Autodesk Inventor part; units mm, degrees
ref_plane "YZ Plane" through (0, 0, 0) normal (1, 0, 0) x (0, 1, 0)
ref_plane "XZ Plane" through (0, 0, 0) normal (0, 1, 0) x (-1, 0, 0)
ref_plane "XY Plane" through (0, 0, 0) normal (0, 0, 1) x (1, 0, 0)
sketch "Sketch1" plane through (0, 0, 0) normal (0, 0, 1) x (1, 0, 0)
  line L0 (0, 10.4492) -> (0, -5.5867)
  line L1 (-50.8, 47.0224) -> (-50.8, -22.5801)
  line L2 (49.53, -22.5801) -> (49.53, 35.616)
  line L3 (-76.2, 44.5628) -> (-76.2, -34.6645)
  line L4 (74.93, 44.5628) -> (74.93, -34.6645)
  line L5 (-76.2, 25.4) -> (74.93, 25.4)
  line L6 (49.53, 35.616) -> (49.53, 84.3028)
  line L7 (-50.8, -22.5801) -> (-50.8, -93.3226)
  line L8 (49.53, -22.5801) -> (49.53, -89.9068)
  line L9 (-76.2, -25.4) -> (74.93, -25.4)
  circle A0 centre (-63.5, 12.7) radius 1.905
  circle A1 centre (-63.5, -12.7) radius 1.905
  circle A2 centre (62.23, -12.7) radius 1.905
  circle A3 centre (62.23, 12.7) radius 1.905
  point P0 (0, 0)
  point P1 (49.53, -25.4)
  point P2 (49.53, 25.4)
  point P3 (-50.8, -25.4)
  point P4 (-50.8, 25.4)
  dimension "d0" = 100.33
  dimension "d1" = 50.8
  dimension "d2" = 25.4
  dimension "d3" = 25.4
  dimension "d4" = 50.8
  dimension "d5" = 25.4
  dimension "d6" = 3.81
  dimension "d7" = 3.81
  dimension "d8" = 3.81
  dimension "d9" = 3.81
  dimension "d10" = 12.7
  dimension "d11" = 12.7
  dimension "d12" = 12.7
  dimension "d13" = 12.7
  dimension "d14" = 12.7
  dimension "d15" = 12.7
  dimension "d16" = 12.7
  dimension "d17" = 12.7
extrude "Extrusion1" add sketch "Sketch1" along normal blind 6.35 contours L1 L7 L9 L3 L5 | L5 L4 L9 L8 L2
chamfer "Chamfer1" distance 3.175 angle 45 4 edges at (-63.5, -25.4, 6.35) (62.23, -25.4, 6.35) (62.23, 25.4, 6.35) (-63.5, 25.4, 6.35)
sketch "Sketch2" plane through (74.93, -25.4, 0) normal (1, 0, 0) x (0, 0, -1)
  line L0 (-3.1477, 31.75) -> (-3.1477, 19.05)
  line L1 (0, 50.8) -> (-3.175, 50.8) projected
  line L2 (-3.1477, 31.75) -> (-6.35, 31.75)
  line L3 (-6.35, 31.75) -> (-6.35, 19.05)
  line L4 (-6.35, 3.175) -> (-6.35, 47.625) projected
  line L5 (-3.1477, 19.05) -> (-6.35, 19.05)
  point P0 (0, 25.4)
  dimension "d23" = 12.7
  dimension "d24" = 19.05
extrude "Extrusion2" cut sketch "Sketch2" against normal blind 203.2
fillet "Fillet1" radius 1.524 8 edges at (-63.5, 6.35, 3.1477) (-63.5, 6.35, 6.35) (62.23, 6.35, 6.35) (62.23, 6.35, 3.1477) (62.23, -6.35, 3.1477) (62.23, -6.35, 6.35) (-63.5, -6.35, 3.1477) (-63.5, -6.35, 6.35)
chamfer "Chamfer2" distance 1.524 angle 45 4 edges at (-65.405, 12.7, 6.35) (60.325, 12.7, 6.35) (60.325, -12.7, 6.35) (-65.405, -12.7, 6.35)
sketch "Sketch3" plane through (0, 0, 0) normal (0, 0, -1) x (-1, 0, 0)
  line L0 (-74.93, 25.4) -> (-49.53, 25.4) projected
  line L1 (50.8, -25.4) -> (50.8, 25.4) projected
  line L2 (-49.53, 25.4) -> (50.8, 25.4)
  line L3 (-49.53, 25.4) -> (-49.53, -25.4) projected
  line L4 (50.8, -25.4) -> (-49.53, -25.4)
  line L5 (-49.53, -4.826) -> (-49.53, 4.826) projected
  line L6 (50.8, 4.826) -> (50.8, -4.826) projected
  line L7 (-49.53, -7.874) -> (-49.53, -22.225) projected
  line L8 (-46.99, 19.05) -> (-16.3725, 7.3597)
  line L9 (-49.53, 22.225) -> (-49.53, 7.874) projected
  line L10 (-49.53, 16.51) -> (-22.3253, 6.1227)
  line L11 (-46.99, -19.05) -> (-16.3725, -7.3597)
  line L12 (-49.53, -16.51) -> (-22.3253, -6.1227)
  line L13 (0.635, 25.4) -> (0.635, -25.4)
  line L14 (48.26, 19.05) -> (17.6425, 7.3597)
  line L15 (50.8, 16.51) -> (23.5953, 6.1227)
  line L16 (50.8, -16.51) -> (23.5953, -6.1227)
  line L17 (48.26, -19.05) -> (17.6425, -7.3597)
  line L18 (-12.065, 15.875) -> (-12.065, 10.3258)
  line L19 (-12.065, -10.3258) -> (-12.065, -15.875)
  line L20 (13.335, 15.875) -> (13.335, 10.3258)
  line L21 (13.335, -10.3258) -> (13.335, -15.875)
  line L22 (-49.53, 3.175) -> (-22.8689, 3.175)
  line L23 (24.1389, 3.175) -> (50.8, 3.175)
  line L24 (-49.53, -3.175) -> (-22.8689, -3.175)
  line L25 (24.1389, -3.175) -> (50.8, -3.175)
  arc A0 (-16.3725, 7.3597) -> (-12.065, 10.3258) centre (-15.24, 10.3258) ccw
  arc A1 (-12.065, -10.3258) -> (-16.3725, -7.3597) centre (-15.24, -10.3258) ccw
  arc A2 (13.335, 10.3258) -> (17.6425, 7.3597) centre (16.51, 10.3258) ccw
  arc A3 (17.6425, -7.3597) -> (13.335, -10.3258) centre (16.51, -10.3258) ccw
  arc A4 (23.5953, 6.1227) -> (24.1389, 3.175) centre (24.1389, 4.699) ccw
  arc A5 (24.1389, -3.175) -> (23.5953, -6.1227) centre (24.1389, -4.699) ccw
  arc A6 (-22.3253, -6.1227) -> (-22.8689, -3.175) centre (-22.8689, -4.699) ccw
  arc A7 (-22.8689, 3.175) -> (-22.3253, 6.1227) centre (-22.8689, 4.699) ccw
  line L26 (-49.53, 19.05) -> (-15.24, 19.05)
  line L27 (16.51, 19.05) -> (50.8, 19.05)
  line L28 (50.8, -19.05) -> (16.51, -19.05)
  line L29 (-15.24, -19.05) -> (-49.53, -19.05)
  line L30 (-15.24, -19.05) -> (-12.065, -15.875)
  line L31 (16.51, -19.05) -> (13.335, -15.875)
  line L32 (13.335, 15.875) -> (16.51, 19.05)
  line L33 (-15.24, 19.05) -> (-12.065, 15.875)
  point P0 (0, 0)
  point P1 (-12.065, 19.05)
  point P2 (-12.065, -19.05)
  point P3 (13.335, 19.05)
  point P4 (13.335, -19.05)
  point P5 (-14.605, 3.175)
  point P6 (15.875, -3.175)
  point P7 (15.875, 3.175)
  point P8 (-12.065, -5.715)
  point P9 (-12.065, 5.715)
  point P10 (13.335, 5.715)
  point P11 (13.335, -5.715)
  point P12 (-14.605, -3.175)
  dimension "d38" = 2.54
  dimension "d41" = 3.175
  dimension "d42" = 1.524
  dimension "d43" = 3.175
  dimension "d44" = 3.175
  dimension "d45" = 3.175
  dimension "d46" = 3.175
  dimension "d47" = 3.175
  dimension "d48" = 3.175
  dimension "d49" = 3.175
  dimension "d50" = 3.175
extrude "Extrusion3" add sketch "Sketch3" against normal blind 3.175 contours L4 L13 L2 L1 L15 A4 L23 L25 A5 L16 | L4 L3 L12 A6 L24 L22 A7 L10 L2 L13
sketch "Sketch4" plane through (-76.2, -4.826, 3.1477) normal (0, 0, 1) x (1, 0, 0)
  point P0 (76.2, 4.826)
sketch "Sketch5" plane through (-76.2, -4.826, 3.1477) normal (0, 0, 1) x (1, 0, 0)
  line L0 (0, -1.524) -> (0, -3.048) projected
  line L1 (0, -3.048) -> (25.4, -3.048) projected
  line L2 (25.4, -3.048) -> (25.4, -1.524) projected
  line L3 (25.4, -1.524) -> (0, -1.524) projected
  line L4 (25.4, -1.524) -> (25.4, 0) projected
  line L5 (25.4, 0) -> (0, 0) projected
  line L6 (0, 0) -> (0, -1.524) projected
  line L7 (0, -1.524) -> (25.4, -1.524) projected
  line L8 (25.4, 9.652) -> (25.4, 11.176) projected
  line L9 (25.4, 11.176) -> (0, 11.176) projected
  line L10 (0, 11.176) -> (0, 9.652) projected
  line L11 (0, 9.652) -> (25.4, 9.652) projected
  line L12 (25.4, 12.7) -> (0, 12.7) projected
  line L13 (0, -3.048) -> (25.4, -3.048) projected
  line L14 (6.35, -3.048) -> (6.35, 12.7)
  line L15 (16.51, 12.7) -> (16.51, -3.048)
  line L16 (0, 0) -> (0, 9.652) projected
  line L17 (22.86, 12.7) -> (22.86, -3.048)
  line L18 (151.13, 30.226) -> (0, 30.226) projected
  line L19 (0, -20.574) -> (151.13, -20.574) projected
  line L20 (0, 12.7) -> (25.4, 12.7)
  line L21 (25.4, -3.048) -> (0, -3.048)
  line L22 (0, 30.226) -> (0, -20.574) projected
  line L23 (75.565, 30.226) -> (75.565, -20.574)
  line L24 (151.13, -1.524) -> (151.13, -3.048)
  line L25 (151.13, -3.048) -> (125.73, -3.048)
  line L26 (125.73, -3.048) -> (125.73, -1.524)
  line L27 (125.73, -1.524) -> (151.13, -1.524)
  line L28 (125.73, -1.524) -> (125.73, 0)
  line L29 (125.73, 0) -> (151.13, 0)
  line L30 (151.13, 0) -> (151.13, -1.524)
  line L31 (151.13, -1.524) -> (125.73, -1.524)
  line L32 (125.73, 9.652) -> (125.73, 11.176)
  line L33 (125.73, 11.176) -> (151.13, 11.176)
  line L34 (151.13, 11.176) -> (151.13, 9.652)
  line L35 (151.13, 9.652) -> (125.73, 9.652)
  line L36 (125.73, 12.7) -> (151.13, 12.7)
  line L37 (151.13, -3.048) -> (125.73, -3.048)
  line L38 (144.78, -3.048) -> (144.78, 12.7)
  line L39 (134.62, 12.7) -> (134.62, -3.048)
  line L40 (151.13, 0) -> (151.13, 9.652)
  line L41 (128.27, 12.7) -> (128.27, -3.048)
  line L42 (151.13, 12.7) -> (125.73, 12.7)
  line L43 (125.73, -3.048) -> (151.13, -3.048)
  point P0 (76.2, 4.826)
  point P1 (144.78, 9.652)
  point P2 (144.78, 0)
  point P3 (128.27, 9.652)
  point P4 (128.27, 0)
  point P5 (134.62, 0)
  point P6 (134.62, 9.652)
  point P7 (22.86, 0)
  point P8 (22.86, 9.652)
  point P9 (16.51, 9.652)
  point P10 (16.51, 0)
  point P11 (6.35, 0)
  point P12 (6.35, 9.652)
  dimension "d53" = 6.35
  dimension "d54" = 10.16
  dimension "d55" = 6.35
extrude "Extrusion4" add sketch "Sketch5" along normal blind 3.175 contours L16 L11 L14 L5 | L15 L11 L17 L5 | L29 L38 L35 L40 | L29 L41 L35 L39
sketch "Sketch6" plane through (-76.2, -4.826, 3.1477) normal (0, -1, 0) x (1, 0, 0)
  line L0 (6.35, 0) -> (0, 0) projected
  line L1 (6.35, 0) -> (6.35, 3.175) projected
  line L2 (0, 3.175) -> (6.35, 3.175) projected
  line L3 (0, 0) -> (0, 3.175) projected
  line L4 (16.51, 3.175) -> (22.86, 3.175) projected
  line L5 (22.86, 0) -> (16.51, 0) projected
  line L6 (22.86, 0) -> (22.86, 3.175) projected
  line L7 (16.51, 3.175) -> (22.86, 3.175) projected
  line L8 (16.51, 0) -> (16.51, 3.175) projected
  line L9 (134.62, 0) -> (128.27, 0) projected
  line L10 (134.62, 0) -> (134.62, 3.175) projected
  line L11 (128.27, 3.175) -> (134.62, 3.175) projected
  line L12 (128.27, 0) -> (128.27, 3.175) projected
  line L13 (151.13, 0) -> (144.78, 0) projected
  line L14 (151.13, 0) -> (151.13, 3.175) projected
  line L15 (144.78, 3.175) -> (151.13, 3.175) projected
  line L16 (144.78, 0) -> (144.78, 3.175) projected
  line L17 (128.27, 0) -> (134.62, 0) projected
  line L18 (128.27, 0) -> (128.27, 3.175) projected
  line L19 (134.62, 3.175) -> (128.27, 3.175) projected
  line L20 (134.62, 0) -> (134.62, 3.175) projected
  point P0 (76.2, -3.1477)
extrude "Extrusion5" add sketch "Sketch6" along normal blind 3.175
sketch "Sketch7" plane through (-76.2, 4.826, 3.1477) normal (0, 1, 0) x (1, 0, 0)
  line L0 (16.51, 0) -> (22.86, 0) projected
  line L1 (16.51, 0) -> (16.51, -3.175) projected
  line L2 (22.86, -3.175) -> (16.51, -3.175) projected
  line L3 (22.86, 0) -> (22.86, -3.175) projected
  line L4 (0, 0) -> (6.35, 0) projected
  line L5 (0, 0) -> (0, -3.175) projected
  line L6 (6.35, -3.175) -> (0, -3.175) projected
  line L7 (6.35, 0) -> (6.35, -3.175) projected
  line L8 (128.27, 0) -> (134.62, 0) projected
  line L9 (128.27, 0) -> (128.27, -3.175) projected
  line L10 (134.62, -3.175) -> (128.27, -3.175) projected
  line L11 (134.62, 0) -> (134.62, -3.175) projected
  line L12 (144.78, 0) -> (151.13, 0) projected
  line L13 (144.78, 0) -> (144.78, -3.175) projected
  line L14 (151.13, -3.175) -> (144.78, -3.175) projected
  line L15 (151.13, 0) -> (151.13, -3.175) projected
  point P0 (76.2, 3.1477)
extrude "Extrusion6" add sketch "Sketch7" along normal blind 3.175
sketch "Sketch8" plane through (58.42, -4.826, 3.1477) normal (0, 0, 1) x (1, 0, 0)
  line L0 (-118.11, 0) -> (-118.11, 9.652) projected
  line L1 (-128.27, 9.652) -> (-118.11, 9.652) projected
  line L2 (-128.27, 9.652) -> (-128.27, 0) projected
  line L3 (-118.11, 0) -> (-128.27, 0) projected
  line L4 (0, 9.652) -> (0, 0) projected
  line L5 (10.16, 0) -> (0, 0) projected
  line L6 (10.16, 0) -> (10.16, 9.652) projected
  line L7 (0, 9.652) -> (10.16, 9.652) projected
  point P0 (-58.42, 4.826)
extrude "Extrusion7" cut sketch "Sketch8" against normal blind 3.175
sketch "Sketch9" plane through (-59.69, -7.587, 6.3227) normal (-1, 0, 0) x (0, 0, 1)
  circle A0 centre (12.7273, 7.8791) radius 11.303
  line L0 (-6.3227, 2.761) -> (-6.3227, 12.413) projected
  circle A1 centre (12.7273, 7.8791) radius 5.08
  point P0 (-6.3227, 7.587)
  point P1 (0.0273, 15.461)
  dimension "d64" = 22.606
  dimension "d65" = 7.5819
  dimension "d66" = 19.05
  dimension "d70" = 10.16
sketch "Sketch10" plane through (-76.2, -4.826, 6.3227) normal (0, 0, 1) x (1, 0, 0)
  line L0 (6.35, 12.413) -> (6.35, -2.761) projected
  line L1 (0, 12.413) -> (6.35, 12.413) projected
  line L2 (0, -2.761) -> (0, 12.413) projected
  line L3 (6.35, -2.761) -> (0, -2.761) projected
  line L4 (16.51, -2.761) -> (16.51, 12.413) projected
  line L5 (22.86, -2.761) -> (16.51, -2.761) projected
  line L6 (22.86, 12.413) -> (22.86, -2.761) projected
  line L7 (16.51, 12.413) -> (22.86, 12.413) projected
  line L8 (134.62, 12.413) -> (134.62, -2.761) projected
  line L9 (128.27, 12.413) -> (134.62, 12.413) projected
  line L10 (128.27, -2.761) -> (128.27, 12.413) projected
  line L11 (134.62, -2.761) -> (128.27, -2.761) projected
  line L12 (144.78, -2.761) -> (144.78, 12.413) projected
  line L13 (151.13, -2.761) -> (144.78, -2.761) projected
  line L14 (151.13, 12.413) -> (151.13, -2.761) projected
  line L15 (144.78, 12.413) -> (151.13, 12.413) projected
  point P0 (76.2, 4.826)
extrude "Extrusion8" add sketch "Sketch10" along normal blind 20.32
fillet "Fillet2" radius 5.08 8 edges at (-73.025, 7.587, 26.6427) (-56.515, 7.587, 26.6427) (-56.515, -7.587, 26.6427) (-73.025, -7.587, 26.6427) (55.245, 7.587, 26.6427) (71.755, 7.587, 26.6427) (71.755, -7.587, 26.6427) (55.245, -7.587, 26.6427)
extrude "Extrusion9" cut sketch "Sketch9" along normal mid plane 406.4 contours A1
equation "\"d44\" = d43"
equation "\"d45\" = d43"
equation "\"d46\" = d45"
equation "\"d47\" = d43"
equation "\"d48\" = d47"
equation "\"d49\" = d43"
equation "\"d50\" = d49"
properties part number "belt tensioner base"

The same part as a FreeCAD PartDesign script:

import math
import FreeCAD as App
import Part
import Sketcher
from FreeCAD import Vector
Q = App.Units.Quantity


def edges_at(feature, points):
    """Names of the edges that pass closest to the given points."""
    edges = feature.Shape.Edges
    near = lambda p: min(range(len(edges)), key=lambda i: edges[i].distToShape(Part.Vertex(*p))[0])
    return sorted({f"Edge{near(p) + 1}" for p in points})


def add_polygon(sketch, points):
    """Adds a closed chain of lines whose ends are joined by coincident constraints."""
    first, n = sketch.GeometryCount, len(points)
    for a, b in zip(points, points[1:] + points[:1]):
        sketch.addGeometry(Part.LineSegment(App.Vector(*a, 0), App.Vector(*b, 0)), False)
    for i in range(n):
        sketch.addConstraint(Sketcher.Constraint("Coincident", first + i, 2, first + (i + 1) % n, 1))

doc = App.newDocument("Part")
body = doc.addObject("PartDesign::Body", "Body")
body.AllowCompound = True

sketch1 = body.newObject("Sketcher::SketchObject", "Sketch")
sketch1.AttachmentSupport = (doc.getObject("XY_Plane"), [""])
sketch1.MapMode = "FlatFace"
add_polygon(sketch1, [(-50.8, -25.4), (-50.8, 25.4), (-76.2, 25.4), (-76.2, -25.4)])
sketch1.addGeometry(Part.Circle(Vector(-63.5, -12.7, 0), Vector(0, 0, 1), 1.9), False)
sketch1.addGeometry(Part.Circle(Vector(-63.5, 12.7, 0), Vector(0, 0, 1), 1.9), False)
add_polygon(sketch1, [(74.9, 25.4), (49.5, 25.4), (49.5, -25.4), (74.9, -25.4)])
sketch1.addGeometry(Part.Circle(Vector(62.2, -12.7, 0), Vector(0, 0, 1), 1.9), False)
sketch1.addGeometry(Part.Circle(Vector(62.2, 12.7, 0), Vector(0, 0, 1), 1.9), False)
sketch1.addConstraint(Sketcher.Constraint("Vertical", 0))
sketch1.addConstraint(Sketcher.Constraint("Horizontal", 1))
sketch1.addConstraint(Sketcher.Constraint("Vertical", 2))
sketch1.addConstraint(Sketcher.Constraint("Horizontal", 3))
sketch1.addConstraint(Sketcher.Constraint("Horizontal", 6))
sketch1.addConstraint(Sketcher.Constraint("Vertical", 7))
sketch1.addConstraint(Sketcher.Constraint("Horizontal", 8))
sketch1.addConstraint(Sketcher.Constraint("Vertical", 9))
sketch1.addConstraint(Sketcher.Constraint("Equal", 4, 5))
sketch1.addConstraint(Sketcher.Constraint("Equal", 5, 10))
sketch1.addConstraint(Sketcher.Constraint("Equal", 10, 11))
sketch1.addConstraint(Sketcher.Constraint("Symmetric", 4, 3, 5, 3, -1))
sketch1.addConstraint(Sketcher.Constraint("Symmetric", 10, 3, 11, 3, -1))
sketch1.addConstraint(Sketcher.Constraint("Horizontal", 4, 3, 10, 3))
sketch1.addConstraint(Sketcher.Constraint("Horizontal", 1, 2, 6, 2))
sketch1.addConstraint(Sketcher.Constraint("Horizontal", 3, 2, 7, 2))
sketch1.addConstraint(Sketcher.Constraint("Equal", 3, 6))
sketch1.addConstraint(Sketcher.Constraint("Diameter", 4, Q("0.15 in")))
sketch1.addConstraint(Sketcher.Constraint("DistanceX", 1, 2, 1, 1, Q("1 in")))
sketch1.addConstraint(Sketcher.Constraint("DistanceY", 0, 1, 0, 2, Q("2 in")))
sketch1.addConstraint(Sketcher.Constraint("DistanceX", 0, 2, -1, 1, Q("2 in")))
sketch1.addConstraint(Sketcher.Constraint("DistanceY", -1, 1, 0, 2, Q("1 in")))
sketch1.addConstraint(Sketcher.Constraint("DistanceY", 4, 3, 5, 3, Q("1 in")))
sketch1.addConstraint(Sketcher.Constraint("DistanceX", 5, 3, 0, 2, Q("0.5 in")))
sketch1.addConstraint(Sketcher.Constraint("DistanceX", 6, 2, 11, 3, Q("0.5 in")))
sketch1.addConstraint(Sketcher.Constraint("DistanceX", 0, 2, 6, 2, Q("3.95 in")))
pad1 = body.newObject("PartDesign::Pad", "Pad")
pad1.Profile = sketch1
pad1.Length = Q("0.25 in")
doc.recompute()

chamfer = body.newObject("PartDesign::Chamfer", "Chamfer")
chamfer.Base = (pad1, edges_at(pad1, [
    (-63.5, -25.4, 6.35),
    (62.23, -25.4, 6.35),
    (62.23, 25.4, 6.35),
    (-63.5, 25.4, 6.35),
]))
chamfer.Size = Q("0.125 in")

sketch2 = body.newObject("Sketcher::SketchObject", "Sketch001")
sketch2.AttachmentSupport = (doc.getObject("YZ_Plane"), [""])
sketch2.MapMode = "FlatFace"
sketch2.AttachmentOffset = App.Placement(Vector(0, 0, 2.95 * 25.4), App.Rotation())
add_polygon(sketch2, [(-6.3, 3.1), (6.3, 3.1), (6.3, 6.3), (-6.3, 6.3)])
sketch2.addConstraint(Sketcher.Constraint("Horizontal", 0))
sketch2.addConstraint(Sketcher.Constraint("Vertical", 1))
sketch2.addConstraint(Sketcher.Constraint("Horizontal", 2))
sketch2.addConstraint(Sketcher.Constraint("Vertical", 3))
sketch2.addConstraint(Sketcher.Constraint("DistanceX", 0, 1, 0, 2, Q("0.5 in")))
sketch2.addConstraint(Sketcher.Constraint("DistanceX", -1, 1, 0, 2, Q("0.25 in")))
sketch2.addConstraint(Sketcher.Constraint("DistanceY", -1, 1, 1, 2, Q("0.25 in")))
sketch2.addConstraint(Sketcher.Constraint("DistanceY", 1, 1, 1, 2, 3.2023))
pocket1 = body.newObject("PartDesign::Pocket", "Pocket")
pocket1.Profile = sketch2
pocket1.Length = Q("8 in")
doc.recompute()

fillet = body.newObject("PartDesign::Fillet", "Fillet")
fillet.Base = (pocket1, edges_at(pocket1, [
    (-63.5, 6.35, 3.148),
    (-63.5, 6.35, 6.35),
    (62.23, 6.35, 6.35),
    (62.23, 6.35, 3.148),
    (62.23, -6.35, 3.148),
    (62.23, -6.35, 6.35),
    (-63.5, -6.35, 3.148),
    (-63.5, -6.35, 6.35),
]))
fillet.Radius = Q("0.06 in")
doc.recompute()

chamfer2 = body.newObject("PartDesign::Chamfer", "Chamfer001")
chamfer2.Base = (fillet, edges_at(fillet, [
    (-65.405, 12.7, 6.35),
    (60.325, 12.7, 6.35),
    (60.325, -12.7, 6.35),
    (-65.405, -12.7, 6.35),
]))
chamfer2.Size = Q("0.06 in")

sketch3 = body.newObject("Sketcher::SketchObject", "Sketch002")
sketch3.AttachmentSupport = (doc.getObject("XY_Plane"), [""])
sketch3.MapMode = "FlatFace"
sketch3.addGeometry(Part.LineSegment(Vector(-50.8, -25.4, 0), Vector(-50.8, -19.05, 0)), False)
sketch3.addGeometry(Part.LineSegment(Vector(-50.8, -19.05, 0), Vector(-50.8, -16.51, 0)), False)
sketch3.addGeometry(Part.LineSegment(Vector(-50.8, -16.51, 0), Vector(-23.5953, -6.1227, 0)), False)
sketch3.addGeometry(Part.ArcOfCircle(Part.Circle(Vector(-24.1389, -4.699, 0), Vector(0, 0, 1), 1.524), math.radians(-69.102043), math.radians(90)), False)
sketch3.addGeometry(Part.LineSegment(Vector(-24.1389, -3.175, 0), Vector(-50.8, -3.175, 0)), False)
sketch3.addGeometry(Part.LineSegment(Vector(-50.8, -3.175, 0), Vector(-50.8, 3.175, 0)), False)
sketch3.addGeometry(Part.LineSegment(Vector(-50.8, 3.175, 0), Vector(-24.1389, 3.175, 0)), False)
sketch3.addGeometry(Part.ArcOfCircle(Part.Circle(Vector(-24.1389, 4.699, 0), Vector(0, 0, 1), 1.52395), math.radians(-90), math.radians(69.102043)), False)
sketch3.addGeometry(Part.LineSegment(Vector(-23.5953, 6.1227, 0), Vector(-50.8, 16.51, 0)), False)
sketch3.addGeometry(Part.LineSegment(Vector(-50.8, 16.51, 0), Vector(-50.8, 19.05, 0)), False)
sketch3.addGeometry(Part.LineSegment(Vector(-50.8, 19.05, 0), Vector(-50.8, 25.4, 0)), False)
sketch3.addGeometry(Part.LineSegment(Vector(-50.8, 25.4, 0), Vector(49.53, 25.4, 0)), False)
sketch3.addGeometry(Part.LineSegment(Vector(49.53, 25.4, 0), Vector(49.53, 19.05, 0)), False)
sketch3.addGeometry(Part.LineSegment(Vector(49.53, 19.05, 0), Vector(49.53, 16.51, 0)), False)
sketch3.addGeometry(Part.LineSegment(Vector(49.53, 16.51, 0), Vector(22.3253, 6.1227, 0)), False)
sketch3.addGeometry(Part.ArcOfCircle(Part.Circle(Vector(22.8689, 4.699, 0), Vector(0, 0, 1), 1.524), math.radians(110.897957), math.radians(270)), False)
sketch3.addGeometry(Part.LineSegment(Vector(22.8689, 3.175, 0), Vector(49.53, 3.175, 0)), False)
sketch3.addGeometry(Part.LineSegment(Vector(49.53, 3.175, 0), Vector(49.53, -3.175, 0)), False)
sketch3.addGeometry(Part.LineSegment(Vector(49.53, -3.175, 0), Vector(22.8689, -3.175, 0)), False)
sketch3.addGeometry(Part.ArcOfCircle(Part.Circle(Vector(22.8689, -4.699, 0), Vector(0, 0, 1), 1.52395), math.radians(90), math.radians(249.102043)), False)
sketch3.addGeometry(Part.LineSegment(Vector(22.3253, -6.1227, 0), Vector(49.53, -16.51, 0)), False)
sketch3.addGeometry(Part.LineSegment(Vector(49.53, -16.51, 0), Vector(49.53, -19.05, 0)), False)
sketch3.addGeometry(Part.LineSegment(Vector(49.53, -19.05, 0), Vector(49.53, -25.4, 0)), False)
sketch3.addGeometry(Part.LineSegment(Vector(49.53, -25.4, 0), Vector(-50.8, -25.4, 0)), False)
sketch3.addGeometry(Part.LineSegment(Vector(-17.6425, -7.3597, 0), Vector(-48.26, -19.05, 0)), False)
sketch3.addGeometry(Part.LineSegment(Vector(-48.26, -19.05, 0), Vector(-16.51, -19.05, 0)), False)
sketch3.addGeometry(Part.LineSegment(Vector(-16.51, -19.05, 0), Vector(-13.335, -15.875, 0)), False)
sketch3.addGeometry(Part.LineSegment(Vector(-13.335, -15.875, 0), Vector(-13.335, -10.3258, 0)), False)
sketch3.addGeometry(Part.ArcOfCircle(Part.Circle(Vector(-16.51, -10.3258, 0), Vector(0, 0, 1), 3.17495), math.radians(0), math.radians(110.897582)), False)
sketch3.addGeometry(Part.LineSegment(Vector(-16.51, 19.05, 0), Vector(-48.26, 19.05, 0)), False)
sketch3.addGeometry(Part.LineSegment(Vector(-48.26, 19.05, 0), Vector(-17.6425, 7.3597, 0)), False)
sketch3.addGeometry(Part.ArcOfCircle(Part.Circle(Vector(-16.51, 10.3258, 0), Vector(0, 0, 1), 3.175), math.radians(-110.897582), math.radians(0)), False)
sketch3.addGeometry(Part.LineSegment(Vector(-13.335, 10.3258, 0), Vector(-13.335, 15.875, 0)), False)
sketch3.addGeometry(Part.LineSegment(Vector(-13.335, 15.875, 0), Vector(-16.51, 19.05, 0)), False)
sketch3.addGeometry(Part.LineSegment(Vector(15.24, -19.05, 0), Vector(46.99, -19.05, 0)), False)
sketch3.addGeometry(Part.LineSegment(Vector(46.99, -19.05, 0), Vector(16.3725, -7.3597, 0)), False)
sketch3.addGeometry(Part.ArcOfCircle(Part.Circle(Vector(15.24, -10.3258, 0), Vector(0, 0, 1), 3.175), math.radians(69.102418), math.radians(180)), False)
sketch3.addGeometry(Part.LineSegment(Vector(12.065, -10.3258, 0), Vector(12.065, -15.875, 0)), False)
sketch3.addGeometry(Part.LineSegment(Vector(12.065, -15.875, 0), Vector(15.24, -19.05, 0)), False)
sketch3.addGeometry(Part.LineSegment(Vector(16.3725, 7.3597, 0), Vector(46.99, 19.05, 0)), False)
sketch3.addGeometry(Part.LineSegment(Vector(46.99, 19.05, 0), Vector(15.24, 19.05, 0)), False)
sketch3.addGeometry(Part.LineSegment(Vector(15.24, 19.05, 0), Vector(12.065, 15.875, 0)), False)
sketch3.addGeometry(Part.LineSegment(Vector(12.065, 15.875, 0), Vector(12.065, 10.3258, 0)), False)
sketch3.addGeometry(Part.ArcOfCircle(Part.Circle(Vector(15.24, 10.3258, 0), Vector(0, 0, 1), 3.17495), math.radians(180), math.radians(290.897582)), False)
sketch3.addConstraint(Sketcher.Constraint("Coincident", 0, 2, 1, 1))
sketch3.addConstraint(Sketcher.Constraint("Coincident", 1, 2, 2, 1))
sketch3.addConstraint(Sketcher.Constraint("Coincident", 2, 2, 3, 1))
sketch3.addConstraint(Sketcher.Constraint("Coincident", 3, 2, 4, 1))
sketch3.addConstraint(Sketcher.Constraint("Coincident", 4, 2, 5, 1))
sketch3.addConstraint(Sketcher.Constraint("Coincident", 5, 2, 6, 1))
sketch3.addConstraint(Sketcher.Constraint("Coincident", 6, 2, 7, 1))
sketch3.addConstraint(Sketcher.Constraint("Coincident", 7, 2, 8, 1))
sketch3.addConstraint(Sketcher.Constraint("Coincident", 8, 2, 9, 1))
sketch3.addConstraint(Sketcher.Constraint("Coincident", 9, 2, 10, 1))
sketch3.addConstraint(Sketcher.Constraint("Coincident", 10, 2, 11, 1))
sketch3.addConstraint(Sketcher.Constraint("Coincident", 11, 2, 12, 1))
sketch3.addConstraint(Sketcher.Constraint("Coincident", 12, 2, 13, 1))
sketch3.addConstraint(Sketcher.Constraint("Coincident", 13, 2, 14, 1))
sketch3.addConstraint(Sketcher.Constraint("Coincident", 14, 2, 15, 1))
sketch3.addConstraint(Sketcher.Constraint("Coincident", 15, 2, 16, 1))
sketch3.addConstraint(Sketcher.Constraint("Coincident", 16, 2, 17, 1))
sketch3.addConstraint(Sketcher.Constraint("Coincident", 17, 2, 18, 1))
sketch3.addConstraint(Sketcher.Constraint("Coincident", 18, 2, 19, 1))
sketch3.addConstraint(Sketcher.Constraint("Coincident", 19, 2, 20, 1))
sketch3.addConstraint(Sketcher.Constraint("Coincident", 20, 2, 21, 1))
sketch3.addConstraint(Sketcher.Constraint("Coincident", 21, 2, 22, 1))
sketch3.addConstraint(Sketcher.Constraint("Coincident", 22, 2, 23, 1))
sketch3.addConstraint(Sketcher.Constraint("Coincident", 23, 2, 0, 1))
sketch3.addConstraint(Sketcher.Constraint("Coincident", 24, 2, 25, 1))
sketch3.addConstraint(Sketcher.Constraint("Coincident", 25, 2, 26, 1))
sketch3.addConstraint(Sketcher.Constraint("Coincident", 26, 2, 27, 1))
sketch3.addConstraint(Sketcher.Constraint("Coincident", 27, 2, 28, 1))
sketch3.addConstraint(Sketcher.Constraint("Coincident", 28, 2, 24, 1))
sketch3.addConstraint(Sketcher.Constraint("Coincident", 29, 2, 30, 1))
sketch3.addConstraint(Sketcher.Constraint("Coincident", 30, 2, 31, 1))
sketch3.addConstraint(Sketcher.Constraint("Coincident", 31, 2, 32, 1))
sketch3.addConstraint(Sketcher.Constraint("Coincident", 32, 2, 33, 1))
sketch3.addConstraint(Sketcher.Constraint("Coincident", 33, 2, 29, 1))
sketch3.addConstraint(Sketcher.Constraint("Coincident", 34, 2, 35, 1))
sketch3.addConstraint(Sketcher.Constraint("Coincident", 35, 2, 36, 1))
sketch3.addConstraint(Sketcher.Constraint("Coincident", 36, 2, 37, 1))
sketch3.addConstraint(Sketcher.Constraint("Coincident", 37, 2, 38, 1))
sketch3.addConstraint(Sketcher.Constraint("Coincident", 38, 2, 34, 1))
sketch3.addConstraint(Sketcher.Constraint("Coincident", 39, 2, 40, 1))
sketch3.addConstraint(Sketcher.Constraint("Coincident", 40, 2, 41, 1))
sketch3.addConstraint(Sketcher.Constraint("Coincident", 41, 2, 42, 1))
sketch3.addConstraint(Sketcher.Constraint("Coincident", 42, 2, 43, 1))
sketch3.addConstraint(Sketcher.Constraint("Coincident", 43, 2, 39, 1))
sketch3.addConstraint(Sketcher.Constraint("Vertical", 0))
sketch3.addConstraint(Sketcher.Constraint("Vertical", 1))
sketch3.addConstraint(Sketcher.Constraint("Horizontal", 4))
sketch3.addConstraint(Sketcher.Constraint("Vertical", 5))
sketch3.addConstraint(Sketcher.Constraint("Horizontal", 6))
sketch3.addConstraint(Sketcher.Constraint("Vertical", 9))
sketch3.addConstraint(Sketcher.Constraint("Vertical", 10))
sketch3.addConstraint(Sketcher.Constraint("Horizontal", 11))
sketch3.addConstraint(Sketcher.Constraint("Vertical", 12))
sketch3.addConstraint(Sketcher.Constraint("Vertical", 13))
sketch3.addConstraint(Sketcher.Constraint("Horizontal", 16))
sketch3.addConstraint(Sketcher.Constraint("Vertical", 17))
sketch3.addConstraint(Sketcher.Constraint("Horizontal", 18))
sketch3.addConstraint(Sketcher.Constraint("Vertical", 21))
sketch3.addConstraint(Sketcher.Constraint("Vertical", 22))
sketch3.addConstraint(Sketcher.Constraint("Horizontal", 23))
sketch3.addConstraint(Sketcher.Constraint("Horizontal", 25))
sketch3.addConstraint(Sketcher.Constraint("Vertical", 27))
sketch3.addConstraint(Sketcher.Constraint("Horizontal", 29))
sketch3.addConstraint(Sketcher.Constraint("Vertical", 32))
sketch3.addConstraint(Sketcher.Constraint("Horizontal", 34))
sketch3.addConstraint(Sketcher.Constraint("Vertical", 37))
sketch3.addConstraint(Sketcher.Constraint("Horizontal", 40))
sketch3.addConstraint(Sketcher.Constraint("Vertical", 42))
sketch3.addConstraint(Sketcher.Constraint("Radius", 3, Q("0.06 in")))
sketch3.addConstraint(Sketcher.Constraint("Radius", 7, Q("0.06 in")))
sketch3.addConstraint(Sketcher.Constraint("Radius", 15, Q("0.06 in")))
sketch3.addConstraint(Sketcher.Constraint("Radius", 19, Q("0.06 in")))
sketch3.addConstraint(Sketcher.Constraint("DistanceY", 1, 1, 1, 2, Q("0.1 in")))
sketch3.addConstraint(Sketcher.Constraint("DistanceY", 9, 1, 9, 2, Q("0.1 in")))
sketch3.addConstraint(Sketcher.Constraint("DistanceY", 13, 2, 13, 1, Q("0.1 in")))
sketch3.addConstraint(Sketcher.Constraint("DistanceY", 21, 2, 21, 1, Q("0.1 in")))
sketch3.addConstraint(Sketcher.Constraint("Radius", 28, Q("0.125 in")))
sketch3.addConstraint(Sketcher.Constraint("Radius", 31, Q("0.125 in")))
sketch3.addConstraint(Sketcher.Constraint("Radius", 36, Q("0.125 in")))
sketch3.addConstraint(Sketcher.Constraint("Radius", 43, Q("0.125 in")))
sketch3.addConstraint(Sketcher.Constraint("DistanceX", 0, 2, 24, 2, Q("0.1 in")))
sketch3.addConstraint(Sketcher.Constraint("DistanceY", 24, 2, 1, 2, Q("0.1 in")))
sketch3.addConstraint(Sketcher.Constraint("DistanceX", 4, 2, 24, 2, Q("0.1 in")))
sketch3.addConstraint(Sketcher.Constraint("DistanceX", 9, 2, 29, 2, Q("0.1 in")))
sketch3.addConstraint(Sketcher.Constraint("DistanceY", 8, 2, 29, 2, Q("0.1 in")))
sketch3.addConstraint(Sketcher.Constraint("DistanceX", 5, 2, 29, 2, Q("0.1 in")))
sketch3.addConstraint(Sketcher.Constraint("DistanceX", 34, 2, 21, 2, Q("0.1 in")))
sketch3.addConstraint(Sketcher.Constraint("DistanceY", 34, 2, 20, 2, Q("0.1 in")))
sketch3.addConstraint(Sketcher.Constraint("DistanceX", 34, 2, 17, 2, Q("0.1 in")))
sketch3.addConstraint(Sketcher.Constraint("DistanceX", 39, 2, 12, 2, Q("0.1 in")))
sketch3.addConstraint(Sketcher.Constraint("DistanceY", 13, 2, 39, 2, Q("0.1 in")))
sketch3.addConstraint(Sketcher.Constraint("DistanceX", 39, 2, 16, 2, Q("0.1 in")))
sketch3.addConstraint(Sketcher.Constraint("DistanceY", 3, 2, -1, 1, Q("0.125 in")))
sketch3.addConstraint(Sketcher.Constraint("DistanceY", -1, 1, 5, 2, Q("0.125 in")))
sketch3.addConstraint(Sketcher.Constraint("DistanceY", -1, 1, 15, 2, Q("0.125 in")))
sketch3.addConstraint(Sketcher.Constraint("DistanceY", 17, 2, -1, 1, Q("0.125 in")))
sketch3.addConstraint(Sketcher.Constraint("DistanceX", 0, 2, -1, 1, Q("2 in")))
sketch3.addConstraint(Sketcher.Constraint("DistanceY", -1, 1, 10, 2, Q("1 in")))
sketch3.addConstraint(Sketcher.Constraint("DistanceY", 22, 2, -1, 1, Q("1 in")))
sketch3.addConstraint(Sketcher.Constraint("DistanceX", 25, 2, 26, 2, Q("0.125 in")))
sketch3.addConstraint(Sketcher.Constraint("DistanceY", 25, 2, 26, 2, Q("0.125 in")))
sketch3.addConstraint(Sketcher.Constraint("DistanceX", 33, 2, 32, 2, Q("0.125 in")))
sketch3.addConstraint(Sketcher.Constraint("DistanceY", 32, 2, 33, 2, Q("0.125 in")))
sketch3.addConstraint(Sketcher.Constraint("DistanceX", 37, 2, 38, 2, Q("0.125 in")))
sketch3.addConstraint(Sketcher.Constraint("DistanceY", 38, 2, 37, 2, Q("0.125 in")))
sketch3.addConstraint(Sketcher.Constraint("DistanceX", 41, 2, 40, 2, Q("0.125 in")))
sketch3.addConstraint(Sketcher.Constraint("DistanceY", 41, 2, 40, 2, Q("0.125 in")))
sketch3.addConstraint(Sketcher.Constraint("DistanceX", 11, 1, 11, 2, Q("3.95 in")))
sketch3.addConstraint(Sketcher.Constraint("DistanceX", 25, 1, 25, 2, Q("1.25 in")))
sketch3.addConstraint(Sketcher.Constraint("DistanceX", 29, 2, 29, 1, Q("1.25 in")))
sketch3.addConstraint(Sketcher.Constraint("DistanceX", 34, 1, 34, 2, Q("1.25 in")))
sketch3.addConstraint(Sketcher.Constraint("DistanceX", 40, 2, 40, 1, Q("1.25 in")))
sketch3.addConstraint(Sketcher.Constraint("DistanceY", 0, 1, 0, 2, Q("0.25 in")))
sketch3.addConstraint(Sketcher.Constraint("DistanceY", 10, 1, 10, 2, Q("0.25 in")))
sketch3.addConstraint(Sketcher.Constraint("DistanceY", 12, 2, 12, 1, Q("0.25 in")))
sketch3.addConstraint(Sketcher.Constraint("DistanceY", 22, 2, 22, 1, Q("0.25 in")))
sketch3.addConstraint(Sketcher.Constraint("Distance", 24, Q("1.2903 in")))
sketch3.addConstraint(Sketcher.Constraint("Distance", 30, Q("1.2903 in")))
sketch3.addConstraint(Sketcher.Constraint("Distance", 35, Q("1.2903 in")))
sketch3.addConstraint(Sketcher.Constraint("Distance", 39, Q("1.2903 in")))
sketch3.addConstraint(Sketcher.Constraint("DistanceX", 4, 2, 4, 1, 26.661))
sketch3.addConstraint(Sketcher.Constraint("DistanceX", 6, 1, 6, 2, 26.661))
sketch3.addConstraint(Sketcher.Constraint("DistanceX", 16, 1, 16, 2, 26.661))
sketch3.addConstraint(Sketcher.Constraint("DistanceX", 18, 2, 18, 1, 26.661))
sketch3.addConstraint(Sketcher.Constraint("DistanceY", 27, 1, 27, 2, 5.5492))
sketch3.addConstraint(Sketcher.Constraint("DistanceY", 32, 1, 32, 2, 5.5492))
sketch3.addConstraint(Sketcher.Constraint("DistanceY", 37, 2, 37, 1, 5.5492))
sketch3.addConstraint(Sketcher.Constraint("DistanceY", 42, 2, 42, 1, 5.5492))
sketch3.addConstraint(Sketcher.Constraint("DistanceX", 7, 3, 15, 3, Q("1.8507 in")))
sketch3.addConstraint(Sketcher.Constraint("DistanceX", 3, 3, 15, 3, Q("1.8507 in")))
sketch3.addConstraint(Sketcher.Constraint("DistanceX", 3, 3, 19, 3, Q("1.8507 in")))
sketch3.addConstraint(Sketcher.Constraint("DistanceX", 3, 3, 2, 2, Q("0.0214 in")))
sketch3.addConstraint(Sketcher.Constraint("DistanceX", 3, 2, 2, 2, Q("0.0214 in")))
sketch3.addConstraint(Sketcher.Constraint("DistanceX", 7, 3, 7, 2, Q("0.0214 in")))
sketch3.addConstraint(Sketcher.Constraint("DistanceX", 14, 2, 15, 3, Q("0.0214 in")))
sketch3.addConstraint(Sketcher.Constraint("DistanceX", 19, 2, 19, 3, Q("0.0214 in")))
sketch3.addConstraint(Sketcher.Constraint("DistanceY", 28, 2, 2, 2, Q("0.0487 in")))
sketch3.addConstraint(Sketcher.Constraint("DistanceY", 7, 2, 30, 2, Q("0.0487 in")))
sketch3.addConstraint(Sketcher.Constraint("DistanceY", 35, 2, 19, 2, Q("0.0487 in")))
sketch3.addConstraint(Sketcher.Constraint("DistanceY", 14, 2, 43, 2, Q("0.0487 in")))
pad2 = body.newObject("PartDesign::Pad", "Pad001")
pad2.Profile = sketch3
pad2.Length = Q("0.125 in")

sketch4 = body.newObject("Sketcher::SketchObject", "Sketch003")
sketch4.AttachmentSupport = (doc.getObject("XY_Plane"), [""])
sketch4.MapMode = "FlatFace"
sketch4.AttachmentOffset = App.Placement(Vector(0, 0, 3.1477), App.Rotation())
add_polygon(sketch4, [(-76, 5), (-76, -5), (-70, -5), (-70, 5)])
add_polygon(sketch4, [(-60, 5), (-60, -5), (-53, -5), (-53, 5)])
add_polygon(sketch4, [(69, -5), (75, -5), (75, 5), (69, 5)])
add_polygon(sketch4, [(52, -5), (58, -5), (58, 5), (52, 5)])
sketch4.addConstraint(Sketcher.Constraint("Vertical", 0))
sketch4.addConstraint(Sketcher.Constraint("Horizontal", 1))
sketch4.addConstraint(Sketcher.Constraint("Vertical", 2))
sketch4.addConstraint(Sketcher.Constraint("Horizontal", 3))
sketch4.addConstraint(Sketcher.Constraint("Vertical", 4))
sketch4.addConstraint(Sketcher.Constraint("Horizontal", 5))
sketch4.addConstraint(Sketcher.Constraint("Vertical", 6))
sketch4.addConstraint(Sketcher.Constraint("Horizontal", 7))
sketch4.addConstraint(Sketcher.Constraint("Horizontal", 8))
sketch4.addConstraint(Sketcher.Constraint("Vertical", 9))
sketch4.addConstraint(Sketcher.Constraint("Horizontal", 10))
sketch4.addConstraint(Sketcher.Constraint("Vertical", 11))
sketch4.addConstraint(Sketcher.Constraint("Horizontal", 12))
sketch4.addConstraint(Sketcher.Constraint("Vertical", 13))
sketch4.addConstraint(Sketcher.Constraint("Horizontal", 14))
sketch4.addConstraint(Sketcher.Constraint("Vertical", 15))
sketch4.addConstraint(Sketcher.Constraint("Horizontal", 1, 2, 4, 2))
sketch4.addConstraint(Sketcher.Constraint("Horizontal", 3, 2, 6, 2))
sketch4.addConstraint(Sketcher.Constraint("Horizontal", 5, 2, 8, 2))
sketch4.addConstraint(Sketcher.Constraint("Horizontal", 7, 2, 9, 2))
sketch4.addConstraint(Sketcher.Constraint("Horizontal", 11, 2, 12, 2))
sketch4.addConstraint(Sketcher.Constraint("Horizontal", 10, 2, 13, 2))
sketch4.addConstraint(Sketcher.Constraint("Equal", 3, 5))
sketch4.addConstraint(Sketcher.Constraint("Equal", 7, 8))
sketch4.addConstraint(Sketcher.Constraint("Equal", 10, 12))
sketch4.addConstraint(Sketcher.Constraint("DistanceX", 1, 1, 1, 2, Q("0.25 in")))
sketch4.addConstraint(Sketcher.Constraint("DistanceX", 1, 2, 4, 2, Q("0.4 in")))
sketch4.addConstraint(Sketcher.Constraint("DistanceX", 12, 2, 11, 2, Q("0.4 in")))
sketch4.addConstraint(Sketcher.Constraint("DistanceX", 0, 2, -1, 1, Q("3 in")))
sketch4.addConstraint(Sketcher.Constraint("DistanceY", 0, 2, 0, 1, Q("0.38 in")))
sketch4.addConstraint(Sketcher.Constraint("DistanceX", -1, 1, 10, 2, Q("2.7 in")))
sketch4.addConstraint(Sketcher.Constraint("DistanceY", 0, 2, -1, 1, Q("0.19 in")))
pad3 = body.newObject("PartDesign::Pad", "Pad002")
pad3.Profile = sketch4
pad3.Length = Q("0.125 in")

sketch5 = body.newObject("Sketcher::SketchObject", "Sketch004")
sketch5.AttachmentSupport = (doc.getObject("XZ_Plane"), [""])
sketch5.MapMode = "FlatFace"
sketch5.AttachmentOffset = App.Placement(Vector(0, 0, 0.19 * 25.4), App.Rotation())
add_polygon(sketch5, [(-76.2, 3.1), (-69.8, 3.1), (-69.8, 6.3), (-76.2, 6.3)])
add_polygon(sketch5, [(-53.3, 6.3), (-59.7, 6.3), (-59.7, 3.1), (-53.3, 3.1)])
add_polygon(sketch5, [(52.1, 3.1), (58.4, 3.1), (58.4, 6.3), (52.1, 6.3)])
add_polygon(sketch5, [(68.6, 3.1), (74.9, 3.1), (74.9, 6.3), (68.6, 6.3)])
sketch5.addConstraint(Sketcher.Constraint("Horizontal", 0))
sketch5.addConstraint(Sketcher.Constraint("Vertical", 1))
sketch5.addConstraint(Sketcher.Constraint("Horizontal", 2))
sketch5.addConstraint(Sketcher.Constraint("Vertical", 3))
sketch5.addConstraint(Sketcher.Constraint("Horizontal", 4))
sketch5.addConstraint(Sketcher.Constraint("Vertical", 5))
sketch5.addConstraint(Sketcher.Constraint("Horizontal", 6))
sketch5.addConstraint(Sketcher.Constraint("Vertical", 7))
sketch5.addConstraint(Sketcher.Constraint("Horizontal", 8))
sketch5.addConstraint(Sketcher.Constraint("Vertical", 9))
sketch5.addConstraint(Sketcher.Constraint("Horizontal", 10))
sketch5.addConstraint(Sketcher.Constraint("Vertical", 11))
sketch5.addConstraint(Sketcher.Constraint("Horizontal", 12))
sketch5.addConstraint(Sketcher.Constraint("Vertical", 13))
sketch5.addConstraint(Sketcher.Constraint("Horizontal", 14))
sketch5.addConstraint(Sketcher.Constraint("Vertical", 15))
sketch5.addConstraint(Sketcher.Constraint("Horizontal", 2, 2, 4, 2))
sketch5.addConstraint(Sketcher.Constraint("Horizontal", 3, 2, 5, 2))
sketch5.addConstraint(Sketcher.Constraint("Horizontal", 6, 2, 8, 2))
sketch5.addConstraint(Sketcher.Constraint("Horizontal", 7, 2, 9, 2))
sketch5.addConstraint(Sketcher.Constraint("Horizontal", 11, 2, 12, 2))
sketch5.addConstraint(Sketcher.Constraint("Horizontal", 10, 2, 13, 2))
sketch5.addConstraint(Sketcher.Constraint("Equal", 2, 4))
sketch5.addConstraint(Sketcher.Constraint("Equal", 6, 8))
sketch5.addConstraint(Sketcher.Constraint("Equal", 10, 12))
sketch5.addConstraint(Sketcher.Constraint("DistanceX", 2, 2, -1, 1, Q("3 in")))
sketch5.addConstraint(Sketcher.Constraint("DistanceX", 0, 1, 0, 2, Q("0.25 in")))
sketch5.addConstraint(Sketcher.Constraint("DistanceX", 6, 2, -1, 1, Q("2.1 in")))
sketch5.addConstraint(Sketcher.Constraint("DistanceX", -1, 1, 8, 2, Q("2.3 in")))
sketch5.addConstraint(Sketcher.Constraint("DistanceX", -1, 1, 14, 2, Q("2.7 in")))
sketch5.addConstraint(Sketcher.Constraint("DistanceY", 1, 1, 1, 2, Q("0.125 in")))
sketch5.addConstraint(Sketcher.Constraint("DistanceY", -1, 1, 0, 2, 3.1477))
pad4 = body.newObject("PartDesign::Pad", "Pad003")
pad4.Profile = sketch5
pad4.Length = Q("0.125 in")

sketch6 = body.newObject("Sketcher::SketchObject", "Sketch005")
sketch6.AttachmentSupport = (doc.getObject("XZ_Plane"), [""])
sketch6.MapMode = "FlatFace"
sketch6.AttachmentOffset = App.Placement(Vector(0, 0, -0.19 * 25.4), App.Rotation())
add_polygon(sketch6, [(-53.3, 3.1), (-59.7, 3.1), (-59.7, 6.3), (-53.3, 6.3)])
add_polygon(sketch6, [(-69.8, 3.1), (-76.2, 3.1), (-76.2, 6.3), (-69.8, 6.3)])
add_polygon(sketch6, [(58.4, 3.1), (52.1, 3.1), (52.1, 6.3), (58.4, 6.3)])
add_polygon(sketch6, [(74.9, 3.1), (68.6, 3.1), (68.6, 6.3), (74.9, 6.3)])
sketch6.addConstraint(Sketcher.Constraint("Horizontal", 0))
sketch6.addConstraint(Sketcher.Constraint("Vertical", 1))
sketch6.addConstraint(Sketcher.Constraint("Horizontal", 2))
sketch6.addConstraint(Sketcher.Constraint("Vertical", 3))
sketch6.addConstraint(Sketcher.Constraint("Horizontal", 4))
sketch6.addConstraint(Sketcher.Constraint("Vertical", 5))
sketch6.addConstraint(Sketcher.Constraint("Horizontal", 6))
sketch6.addConstraint(Sketcher.Constraint("Vertical", 7))
sketch6.addConstraint(Sketcher.Constraint("Horizontal", 8))
sketch6.addConstraint(Sketcher.Constraint("Vertical", 9))
sketch6.addConstraint(Sketcher.Constraint("Horizontal", 10))
sketch6.addConstraint(Sketcher.Constraint("Vertical", 11))
sketch6.addConstraint(Sketcher.Constraint("Horizontal", 12))
sketch6.addConstraint(Sketcher.Constraint("Vertical", 13))
sketch6.addConstraint(Sketcher.Constraint("Horizontal", 14))
sketch6.addConstraint(Sketcher.Constraint("Vertical", 15))
sketch6.addConstraint(Sketcher.Constraint("Horizontal", 3, 2, 4, 2))
sketch6.addConstraint(Sketcher.Constraint("Horizontal", 2, 2, 5, 2))
sketch6.addConstraint(Sketcher.Constraint("Horizontal", 7, 2, 8, 2))
sketch6.addConstraint(Sketcher.Constraint("Horizontal", 6, 2, 9, 2))
sketch6.addConstraint(Sketcher.Constraint("Horizontal", 11, 2, 12, 2))
sketch6.addConstraint(Sketcher.Constraint("Horizontal", 10, 2, 13, 2))
sketch6.addConstraint(Sketcher.Constraint("Equal", 2, 4))
sketch6.addConstraint(Sketcher.Constraint("Equal", 6, 8))
sketch6.addConstraint(Sketcher.Constraint("Equal", 10, 12))
sketch6.addConstraint(Sketcher.Constraint("DistanceX", 4, 2, -1, 1, Q("3 in")))
sketch6.addConstraint(Sketcher.Constraint("DistanceX", 0, 2, 0, 1, Q("0.25 in")))
sketch6.addConstraint(Sketcher.Constraint("DistanceX", 2, 2, -1, 1, Q("2.1 in")))
sketch6.addConstraint(Sketcher.Constraint("DistanceX", -1, 1, 10, 2, Q("2.3 in")))
sketch6.addConstraint(Sketcher.Constraint("DistanceX", -1, 1, 12, 2, Q("2.7 in")))
sketch6.addConstraint(Sketcher.Constraint("DistanceY", 1, 1, 1, 2, Q("0.125 in")))
sketch6.addConstraint(Sketcher.Constraint("DistanceY", -1, 1, 0, 2, 3.1477))
pad5 = body.newObject("PartDesign::Pad", "Pad004")
pad5.Profile = sketch6
pad5.Length = Q("0.125 in")
pad5.Reversed = True

sketch7 = body.newObject("Sketcher::SketchObject", "Sketch006")
sketch7.AttachmentSupport = (doc.getObject("XY_Plane"), [""])
sketch7.MapMode = "FlatFace"
sketch7.AttachmentOffset = App.Placement(Vector(0, 0, 3.1477), App.Rotation())
add_polygon(sketch7, [(-70, -5), (-60, -5), (-60, 5), (-70, 5)])
add_polygon(sketch7, [(69, 5), (58, 5), (58, -5), (69, -5)])
sketch7.addConstraint(Sketcher.Constraint("Horizontal", 0))
sketch7.addConstraint(Sketcher.Constraint("Vertical", 1))
sketch7.addConstraint(Sketcher.Constraint("Horizontal", 2))
sketch7.addConstraint(Sketcher.Constraint("Vertical", 3))
sketch7.addConstraint(Sketcher.Constraint("Horizontal", 4))
sketch7.addConstraint(Sketcher.Constraint("Vertical", 5))
sketch7.addConstraint(Sketcher.Constraint("Horizontal", 6))
sketch7.addConstraint(Sketcher.Constraint("Vertical", 7))
sketch7.addConstraint(Sketcher.Constraint("Horizontal", 2, 2, 4, 2))
sketch7.addConstraint(Sketcher.Constraint("Horizontal", 3, 2, 5, 2))
sketch7.addConstraint(Sketcher.Constraint("Equal", 2, 4))
sketch7.addConstraint(Sketcher.Constraint("DistanceX", 0, 1, 0, 2, Q("0.4 in")))
sketch7.addConstraint(Sketcher.Constraint("DistanceY", 1, 1, 1, 2, Q("0.38 in")))
sketch7.addConstraint(Sketcher.Constraint("DistanceX", -1, 1, 4, 2, Q("2.3 in")))
sketch7.addConstraint(Sketcher.Constraint("DistanceX", 0, 2, -1, 1, Q("2.35 in")))
sketch7.addConstraint(Sketcher.Constraint("DistanceY", 0, 2, -1, 1, Q("0.19 in")))
pocket2 = body.newObject("PartDesign::Pocket", "Pocket001")
pocket2.Profile = sketch7
pocket2.Length = Q("0.125 in")

sketch8 = body.newObject("Sketcher::SketchObject", "Sketch007")
sketch8.AttachmentSupport = (doc.getObject("XY_Plane"), [""])
sketch8.MapMode = "FlatFace"
sketch8.AttachmentOffset = App.Placement(Vector(0, 0, 6.3227), App.Rotation())
add_polygon(sketch8, [(-70, -8), (-70, 8), (-76, 8), (-76, -8)])
add_polygon(sketch8, [(-60, 8), (-60, -8), (-53, -8), (-53, 8)])
add_polygon(sketch8, [(58, -8), (58, 8), (52, 8), (52, -8)])
add_polygon(sketch8, [(69, 8), (69, -8), (75, -8), (75, 8)])
sketch8.addConstraint(Sketcher.Constraint("Vertical", 0))
sketch8.addConstraint(Sketcher.Constraint("Horizontal", 1))
sketch8.addConstraint(Sketcher.Constraint("Vertical", 2))
sketch8.addConstraint(Sketcher.Constraint("Horizontal", 3))
sketch8.addConstraint(Sketcher.Constraint("Vertical", 4))
sketch8.addConstraint(Sketcher.Constraint("Horizontal", 5))
sketch8.addConstraint(Sketcher.Constraint("Vertical", 6))
sketch8.addConstraint(Sketcher.Constraint("Horizontal", 7))
sketch8.addConstraint(Sketcher.Constraint("Vertical", 8))
sketch8.addConstraint(Sketcher.Constraint("Horizontal", 9))
sketch8.addConstraint(Sketcher.Constraint("Vertical", 10))
sketch8.addConstraint(Sketcher.Constraint("Horizontal", 11))
sketch8.addConstraint(Sketcher.Constraint("Vertical", 12))
sketch8.addConstraint(Sketcher.Constraint("Horizontal", 13))
sketch8.addConstraint(Sketcher.Constraint("Vertical", 14))
sketch8.addConstraint(Sketcher.Constraint("Horizontal", 15))
sketch8.addConstraint(Sketcher.Constraint("Horizontal", 3, 2, 4, 2))
sketch8.addConstraint(Sketcher.Constraint("Horizontal", 1, 2, 6, 2))
sketch8.addConstraint(Sketcher.Constraint("Horizontal", 7, 2, 8, 2))
sketch8.addConstraint(Sketcher.Constraint("Horizontal", 5, 2, 10, 2))
sketch8.addConstraint(Sketcher.Constraint("Horizontal", 11, 2, 12, 2))
sketch8.addConstraint(Sketcher.Constraint("Horizontal", 9, 2, 14, 2))
sketch8.addConstraint(Sketcher.Constraint("Equal", 3, 5))
sketch8.addConstraint(Sketcher.Constraint("Equal", 7, 9))
sketch8.addConstraint(Sketcher.Constraint("Equal", 11, 13))
sketch8.addConstraint(Sketcher.Constraint("DistanceX", 1, 2, -1, 1, Q("3 in")))
sketch8.addConstraint(Sketcher.Constraint("DistanceX", 1, 2, 1, 1, Q("0.25 in")))
sketch8.addConstraint(Sketcher.Constraint("DistanceX", 5, 2, -1, 1, Q("2.1 in")))
sketch8.addConstraint(Sketcher.Constraint("DistanceX", -1, 1, 8, 2, Q("2.3 in")))
sketch8.addConstraint(Sketcher.Constraint("DistanceX", -1, 1, 12, 2, Q("2.7 in")))
sketch8.addConstraint(Sketcher.Constraint("DistanceY", 0, 1, 0, 2, Q("0.5974 in")))
sketch8.addConstraint(Sketcher.Constraint("DistanceY", -1, 1, 0, 2, Q("0.2987 in")))
pad6 = body.newObject("PartDesign::Pad", "Pad005")
pad6.Profile = sketch8
pad6.Length = Q("0.8 in")
doc.recompute()

fillet2 = body.newObject("PartDesign::Fillet", "Fillet001")
fillet2.Base = (pad6, edges_at(pad6, [
    (-73.025, 7.587, 26.643),
    (-56.515, 7.587, 26.643),
    (-56.515, -7.587, 26.643),
    (-73.025, -7.587, 26.643),
    (55.245, 7.587, 26.643),
    (71.755, 7.587, 26.643),
    (71.755, -7.587, 26.643),
    (55.245, -7.587, 26.643),
]))
fillet2.Radius = Q("0.2 in")

sketch9 = body.newObject("Sketcher::SketchObject", "Sketch008")
sketch9.AttachmentSupport = (doc.getObject("YZ_Plane"), [""])
sketch9.MapMode = "FlatFace"
sketch9.AttachmentOffset = App.Placement(Vector(0, 0, -2.35 * 25.4), App.Rotation())
sketch9.addGeometry(Part.Circle(Vector(0, 19, 0), Vector(0, 0, 1), 5), False)
sketch9.addConstraint(Sketcher.Constraint("Diameter", 0, Q("0.4 in")))
sketch9.addConstraint(Sketcher.Constraint("DistanceY", -1, 1, 0, 3, Q("0.75 in")))
sketch9.addConstraint(Sketcher.Constraint("DistanceX", -1, 1, 0, 3, Q("0.0115 in")))
pocket3 = body.newObject("PartDesign::Pocket", "Pocket002")
pocket3.Profile = sketch9
pocket3.Length = Q("16 in")
pocket3.Midplane = True

doc.recompute()
